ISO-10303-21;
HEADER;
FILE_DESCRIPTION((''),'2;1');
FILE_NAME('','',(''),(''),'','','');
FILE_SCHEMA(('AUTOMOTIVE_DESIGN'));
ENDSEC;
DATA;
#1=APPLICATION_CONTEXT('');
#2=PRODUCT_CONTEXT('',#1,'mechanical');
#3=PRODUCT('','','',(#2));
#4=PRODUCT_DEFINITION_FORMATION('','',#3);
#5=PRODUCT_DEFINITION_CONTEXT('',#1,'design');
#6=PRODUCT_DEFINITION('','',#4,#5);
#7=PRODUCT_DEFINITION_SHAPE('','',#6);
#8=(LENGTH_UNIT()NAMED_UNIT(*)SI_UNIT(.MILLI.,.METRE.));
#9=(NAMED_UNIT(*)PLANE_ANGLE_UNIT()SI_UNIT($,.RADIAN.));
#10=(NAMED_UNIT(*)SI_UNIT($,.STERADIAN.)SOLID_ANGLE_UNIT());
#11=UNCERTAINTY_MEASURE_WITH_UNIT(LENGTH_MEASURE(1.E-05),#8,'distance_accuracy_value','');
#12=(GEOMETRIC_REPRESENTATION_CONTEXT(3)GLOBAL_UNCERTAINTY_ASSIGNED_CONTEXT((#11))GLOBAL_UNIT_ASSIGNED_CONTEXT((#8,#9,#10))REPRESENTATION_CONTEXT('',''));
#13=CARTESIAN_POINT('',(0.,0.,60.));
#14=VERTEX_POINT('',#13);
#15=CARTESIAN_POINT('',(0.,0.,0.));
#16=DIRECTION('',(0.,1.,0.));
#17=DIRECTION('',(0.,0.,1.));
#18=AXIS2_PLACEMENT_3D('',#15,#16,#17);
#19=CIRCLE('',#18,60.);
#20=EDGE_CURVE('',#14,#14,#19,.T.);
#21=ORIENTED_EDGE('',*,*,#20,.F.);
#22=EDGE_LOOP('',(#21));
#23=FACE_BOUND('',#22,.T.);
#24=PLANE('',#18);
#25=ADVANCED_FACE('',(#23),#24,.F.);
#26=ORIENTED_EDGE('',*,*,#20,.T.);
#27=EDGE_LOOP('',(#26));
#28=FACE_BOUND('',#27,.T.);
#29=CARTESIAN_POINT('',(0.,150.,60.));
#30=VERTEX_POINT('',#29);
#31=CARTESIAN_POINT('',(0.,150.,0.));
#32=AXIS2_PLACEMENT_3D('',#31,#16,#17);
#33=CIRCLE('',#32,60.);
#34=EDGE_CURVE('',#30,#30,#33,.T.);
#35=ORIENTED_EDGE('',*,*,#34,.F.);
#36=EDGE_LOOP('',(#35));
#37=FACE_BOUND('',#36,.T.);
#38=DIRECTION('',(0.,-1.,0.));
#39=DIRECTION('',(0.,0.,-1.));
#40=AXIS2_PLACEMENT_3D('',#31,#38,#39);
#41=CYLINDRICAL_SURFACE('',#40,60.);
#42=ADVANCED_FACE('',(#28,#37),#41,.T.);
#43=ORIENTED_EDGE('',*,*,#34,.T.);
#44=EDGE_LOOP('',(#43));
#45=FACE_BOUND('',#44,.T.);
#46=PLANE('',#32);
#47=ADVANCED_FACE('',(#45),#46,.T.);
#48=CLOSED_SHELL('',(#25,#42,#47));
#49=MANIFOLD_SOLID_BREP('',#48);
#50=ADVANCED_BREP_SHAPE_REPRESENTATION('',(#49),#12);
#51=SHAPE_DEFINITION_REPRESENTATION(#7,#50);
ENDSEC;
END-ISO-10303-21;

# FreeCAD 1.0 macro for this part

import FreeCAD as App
import Part
import Sketcher

V = App.Vector
Q = App.Units.Quantity

doc = App.newDocument("Part")
params = doc.addObject("Spreadsheet::Sheet", "Params")
for row, (alias, value) in enumerate([
    ("sketch1_diameter", "120 mm"),
    ("pad1_length", "150 mm"),
], start=1):
    params.set(f"A{row}", alias)
    params.set(f"B{row}", "=" + value)
    params.setAlias(f"B{row}", alias)

body = doc.addObject("PartDesign::Body", "Body")

sketch1 = body.newObject("Sketcher::SketchObject", "Sketch")
sketch1.AttachmentSupport = (doc.getObject("XZ_Plane"), [""])
sketch1.MapMode = "FlatFace"
sketch1.addGeometry(Part.Circle(V(0, 0, 0), V(0, 0, 1), 60), False)
sketch1.addConstraint([
    Sketcher.Constraint("Coincident", 0, 3, -1, 1),
    Sketcher.Constraint("Diameter", 0, Q("120 mm")),
])
sketch1.setExpression("Constraints[1]", "Params.sketch1_diameter")
pad1 = body.newObject("PartDesign::Pad", "Pad")
pad1.Profile = sketch1
pad1.setExpression("Length", "Params.pad1_length")
pad1.Reversed = True

doc.recompute()
